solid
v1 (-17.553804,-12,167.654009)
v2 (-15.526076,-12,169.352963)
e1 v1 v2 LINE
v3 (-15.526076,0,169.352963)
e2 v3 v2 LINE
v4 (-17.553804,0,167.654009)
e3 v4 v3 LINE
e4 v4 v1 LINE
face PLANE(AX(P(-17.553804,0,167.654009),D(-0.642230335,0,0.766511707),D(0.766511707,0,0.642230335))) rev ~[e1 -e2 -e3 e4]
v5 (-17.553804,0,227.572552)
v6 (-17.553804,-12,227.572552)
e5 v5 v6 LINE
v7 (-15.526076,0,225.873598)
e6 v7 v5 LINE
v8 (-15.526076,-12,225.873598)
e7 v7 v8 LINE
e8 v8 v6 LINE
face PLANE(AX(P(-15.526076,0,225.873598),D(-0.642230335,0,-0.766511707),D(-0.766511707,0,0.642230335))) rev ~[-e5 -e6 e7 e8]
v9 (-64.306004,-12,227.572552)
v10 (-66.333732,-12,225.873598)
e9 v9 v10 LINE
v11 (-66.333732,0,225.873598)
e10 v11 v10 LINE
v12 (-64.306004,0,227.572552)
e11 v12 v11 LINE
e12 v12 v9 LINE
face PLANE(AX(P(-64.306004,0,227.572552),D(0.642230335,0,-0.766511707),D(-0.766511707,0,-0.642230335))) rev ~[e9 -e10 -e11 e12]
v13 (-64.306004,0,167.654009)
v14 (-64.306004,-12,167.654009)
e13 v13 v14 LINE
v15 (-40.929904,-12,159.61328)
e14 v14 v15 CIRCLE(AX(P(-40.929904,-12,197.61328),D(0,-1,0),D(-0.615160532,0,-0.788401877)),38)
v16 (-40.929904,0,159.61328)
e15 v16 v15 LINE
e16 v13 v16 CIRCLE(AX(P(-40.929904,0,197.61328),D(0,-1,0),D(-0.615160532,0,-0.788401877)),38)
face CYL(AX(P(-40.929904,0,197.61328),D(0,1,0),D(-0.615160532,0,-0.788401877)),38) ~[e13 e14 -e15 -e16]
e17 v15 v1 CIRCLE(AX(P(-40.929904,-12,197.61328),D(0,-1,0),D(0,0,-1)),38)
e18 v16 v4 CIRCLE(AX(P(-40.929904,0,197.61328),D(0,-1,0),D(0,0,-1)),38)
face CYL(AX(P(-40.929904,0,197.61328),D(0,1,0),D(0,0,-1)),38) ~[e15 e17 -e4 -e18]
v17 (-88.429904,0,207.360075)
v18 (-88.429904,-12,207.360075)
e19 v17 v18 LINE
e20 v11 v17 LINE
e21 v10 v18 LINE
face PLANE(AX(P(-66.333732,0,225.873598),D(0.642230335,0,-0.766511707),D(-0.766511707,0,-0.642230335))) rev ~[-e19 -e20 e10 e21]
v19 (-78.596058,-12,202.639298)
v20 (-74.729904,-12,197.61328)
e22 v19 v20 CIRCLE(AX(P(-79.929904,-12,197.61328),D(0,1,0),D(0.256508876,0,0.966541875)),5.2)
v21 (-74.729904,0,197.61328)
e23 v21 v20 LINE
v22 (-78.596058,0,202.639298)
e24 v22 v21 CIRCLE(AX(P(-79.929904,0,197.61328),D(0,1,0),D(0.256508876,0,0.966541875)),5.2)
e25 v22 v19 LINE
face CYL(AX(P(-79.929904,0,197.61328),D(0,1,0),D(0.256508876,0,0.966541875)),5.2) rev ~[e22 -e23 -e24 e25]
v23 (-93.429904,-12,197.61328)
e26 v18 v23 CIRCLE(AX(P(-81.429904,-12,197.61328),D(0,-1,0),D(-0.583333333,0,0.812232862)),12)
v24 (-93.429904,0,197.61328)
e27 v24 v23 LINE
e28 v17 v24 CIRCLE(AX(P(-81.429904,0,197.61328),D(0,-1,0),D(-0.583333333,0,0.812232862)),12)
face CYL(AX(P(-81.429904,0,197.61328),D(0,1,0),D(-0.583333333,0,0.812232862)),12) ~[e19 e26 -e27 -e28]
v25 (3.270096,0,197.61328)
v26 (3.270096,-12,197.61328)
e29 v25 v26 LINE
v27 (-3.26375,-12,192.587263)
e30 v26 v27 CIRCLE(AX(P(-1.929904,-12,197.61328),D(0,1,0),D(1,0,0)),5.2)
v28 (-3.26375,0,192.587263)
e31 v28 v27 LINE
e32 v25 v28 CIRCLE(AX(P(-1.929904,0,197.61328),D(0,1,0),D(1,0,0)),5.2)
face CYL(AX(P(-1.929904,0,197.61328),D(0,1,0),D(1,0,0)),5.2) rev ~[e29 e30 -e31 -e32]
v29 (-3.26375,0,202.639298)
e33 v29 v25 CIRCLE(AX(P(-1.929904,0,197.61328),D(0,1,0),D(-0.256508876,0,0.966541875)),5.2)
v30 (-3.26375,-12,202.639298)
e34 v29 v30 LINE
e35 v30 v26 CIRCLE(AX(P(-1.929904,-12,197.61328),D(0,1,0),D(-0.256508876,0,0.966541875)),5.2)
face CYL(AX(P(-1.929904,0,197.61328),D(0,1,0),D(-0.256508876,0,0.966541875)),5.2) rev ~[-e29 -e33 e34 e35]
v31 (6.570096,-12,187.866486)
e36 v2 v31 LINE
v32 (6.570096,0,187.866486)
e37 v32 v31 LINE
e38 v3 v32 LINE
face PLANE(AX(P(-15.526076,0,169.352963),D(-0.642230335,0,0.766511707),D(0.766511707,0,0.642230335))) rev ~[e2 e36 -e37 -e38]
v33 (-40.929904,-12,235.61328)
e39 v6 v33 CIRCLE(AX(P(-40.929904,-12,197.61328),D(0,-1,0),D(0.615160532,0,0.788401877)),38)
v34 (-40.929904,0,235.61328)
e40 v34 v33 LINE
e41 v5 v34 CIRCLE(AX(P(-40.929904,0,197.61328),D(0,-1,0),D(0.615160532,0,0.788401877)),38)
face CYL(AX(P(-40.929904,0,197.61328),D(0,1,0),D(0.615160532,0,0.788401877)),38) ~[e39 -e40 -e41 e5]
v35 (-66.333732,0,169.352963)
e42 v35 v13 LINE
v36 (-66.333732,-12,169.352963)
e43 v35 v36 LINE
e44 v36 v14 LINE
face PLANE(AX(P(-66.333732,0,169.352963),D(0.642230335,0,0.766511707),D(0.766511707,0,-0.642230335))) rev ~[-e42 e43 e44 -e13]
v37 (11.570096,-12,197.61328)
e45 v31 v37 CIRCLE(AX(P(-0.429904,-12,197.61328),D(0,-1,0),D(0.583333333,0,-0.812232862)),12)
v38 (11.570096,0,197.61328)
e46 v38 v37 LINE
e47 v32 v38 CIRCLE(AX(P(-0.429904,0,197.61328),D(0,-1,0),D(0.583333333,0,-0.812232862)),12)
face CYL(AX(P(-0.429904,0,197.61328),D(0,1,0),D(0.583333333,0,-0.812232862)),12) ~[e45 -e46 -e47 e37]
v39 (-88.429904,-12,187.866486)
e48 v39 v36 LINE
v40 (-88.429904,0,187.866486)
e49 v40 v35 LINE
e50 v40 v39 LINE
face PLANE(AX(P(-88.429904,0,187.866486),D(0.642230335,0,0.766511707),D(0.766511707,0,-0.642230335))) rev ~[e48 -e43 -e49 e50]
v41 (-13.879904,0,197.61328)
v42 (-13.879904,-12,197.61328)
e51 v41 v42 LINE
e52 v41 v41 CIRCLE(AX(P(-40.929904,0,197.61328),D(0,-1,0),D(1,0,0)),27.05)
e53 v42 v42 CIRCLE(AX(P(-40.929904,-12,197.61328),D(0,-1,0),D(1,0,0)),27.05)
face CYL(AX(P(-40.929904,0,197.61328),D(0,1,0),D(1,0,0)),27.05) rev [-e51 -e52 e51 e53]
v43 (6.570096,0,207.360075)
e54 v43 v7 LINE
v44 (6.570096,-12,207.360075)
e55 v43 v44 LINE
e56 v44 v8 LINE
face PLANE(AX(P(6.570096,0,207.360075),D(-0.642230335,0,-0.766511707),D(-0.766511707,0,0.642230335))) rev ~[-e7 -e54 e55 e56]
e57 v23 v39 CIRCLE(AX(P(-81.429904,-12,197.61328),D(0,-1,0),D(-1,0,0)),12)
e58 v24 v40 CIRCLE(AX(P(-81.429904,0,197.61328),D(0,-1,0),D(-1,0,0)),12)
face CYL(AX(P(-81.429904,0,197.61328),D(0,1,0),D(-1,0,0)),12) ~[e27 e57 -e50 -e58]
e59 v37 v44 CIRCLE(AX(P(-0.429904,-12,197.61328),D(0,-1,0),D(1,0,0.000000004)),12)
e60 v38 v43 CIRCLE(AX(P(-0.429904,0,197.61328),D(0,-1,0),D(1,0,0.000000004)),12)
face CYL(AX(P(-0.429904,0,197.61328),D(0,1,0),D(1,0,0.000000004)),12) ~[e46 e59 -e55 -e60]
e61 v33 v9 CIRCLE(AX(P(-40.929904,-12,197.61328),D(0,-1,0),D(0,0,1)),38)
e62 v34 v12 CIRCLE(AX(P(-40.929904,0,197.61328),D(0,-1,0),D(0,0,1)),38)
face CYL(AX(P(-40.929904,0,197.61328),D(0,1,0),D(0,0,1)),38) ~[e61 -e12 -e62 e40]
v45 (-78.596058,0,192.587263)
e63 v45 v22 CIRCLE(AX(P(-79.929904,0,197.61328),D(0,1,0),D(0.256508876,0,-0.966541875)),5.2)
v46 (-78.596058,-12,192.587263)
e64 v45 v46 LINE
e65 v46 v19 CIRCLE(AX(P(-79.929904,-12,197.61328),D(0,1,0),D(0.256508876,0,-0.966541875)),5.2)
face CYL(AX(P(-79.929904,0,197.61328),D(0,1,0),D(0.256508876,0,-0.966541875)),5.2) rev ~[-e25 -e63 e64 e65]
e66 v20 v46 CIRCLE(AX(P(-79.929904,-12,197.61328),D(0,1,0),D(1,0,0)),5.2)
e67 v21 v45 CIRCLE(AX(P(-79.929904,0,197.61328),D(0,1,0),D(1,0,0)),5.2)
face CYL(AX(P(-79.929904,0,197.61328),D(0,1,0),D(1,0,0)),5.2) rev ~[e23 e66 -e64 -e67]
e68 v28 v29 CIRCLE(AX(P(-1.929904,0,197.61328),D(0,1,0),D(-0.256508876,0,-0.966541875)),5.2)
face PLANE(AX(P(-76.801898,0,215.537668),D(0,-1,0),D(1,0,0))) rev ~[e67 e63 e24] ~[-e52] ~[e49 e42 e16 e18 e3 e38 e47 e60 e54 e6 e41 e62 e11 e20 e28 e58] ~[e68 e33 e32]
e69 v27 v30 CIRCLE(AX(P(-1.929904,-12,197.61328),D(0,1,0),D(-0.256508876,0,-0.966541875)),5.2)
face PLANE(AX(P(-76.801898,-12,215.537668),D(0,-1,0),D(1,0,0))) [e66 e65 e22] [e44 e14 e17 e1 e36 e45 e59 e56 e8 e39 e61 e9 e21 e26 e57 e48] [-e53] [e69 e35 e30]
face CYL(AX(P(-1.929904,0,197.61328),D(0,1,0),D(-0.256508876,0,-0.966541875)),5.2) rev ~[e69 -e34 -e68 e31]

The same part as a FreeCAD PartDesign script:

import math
import FreeCAD as App
import Part
import Sketcher
from FreeCAD import Vector

doc = App.newDocument("Part")
body = doc.addObject("PartDesign::Body", "Body")

# Sketch on XZ plane
sketch1 = body.newObject("Sketcher::SketchObject", "Sketch")
sketch1.AttachmentSupport = (doc.getObject("XZ_Plane"), [""])
sketch1.MapMode = "FlatFace"
sketch1.addGeometry([
    Part.LineSegment(Vector(-66.3, 225.9, 0), Vector(-88.4, 207.4, 0)),  # 0
    Part.ArcOfCircle(Part.Circle(Vector(-81.4, 197.6, 0), Vector(0, 0, 1), 12), math.radians(126), math.radians(180)),  # 1
    Part.ArcOfCircle(Part.Circle(Vector(-81.4, 197.6, 0), Vector(0, 0, 1), 12), math.radians(180), math.radians(234)),  # 2
    Part.LineSegment(Vector(-88.4, 187.9, 0), Vector(-66.3, 169.4, 0)),  # 3
    Part.LineSegment(Vector(-66.3, 169.4, 0), Vector(-64.3, 167.7, 0)),  # 4
    Part.ArcOfCircle(Part.Circle(Vector(-40.9, 197.6, 0), Vector(0, 0, 1), 38), math.radians(-128), math.radians(-90)),  # 5
    Part.ArcOfCircle(Part.Circle(Vector(-40.9, 197.6, 0), Vector(0, 0, 1), 38), math.radians(-90), math.radians(-52)),  # 6
    Part.LineSegment(Vector(-17.6, 167.7, 0), Vector(-15.5, 169.4, 0)),  # 7
    Part.LineSegment(Vector(-15.5, 169.4, 0), Vector(6.6, 187.9, 0)),  # 8
    Part.ArcOfCircle(Part.Circle(Vector(-0.4, 197.6, 0), Vector(0, 0, 1), 12), math.radians(-54), math.radians(0)),  # 9
    Part.ArcOfCircle(Part.Circle(Vector(-0.4, 197.6, 0), Vector(0, 0, 1), 12), math.radians(0), math.radians(54)),  # 10
    Part.LineSegment(Vector(6.6, 207.4, 0), Vector(-15.5, 225.9, 0)),  # 11
    Part.LineSegment(Vector(-15.5, 225.9, 0), Vector(-17.6, 227.6, 0)),  # 12
    Part.ArcOfCircle(Part.Circle(Vector(-40.9, 197.6, 0), Vector(0, 0, 1), 38), math.radians(52), math.radians(90)),  # 13
    Part.ArcOfCircle(Part.Circle(Vector(-40.9, 197.6, 0), Vector(0, 0, 1), 38), math.radians(90), math.radians(128)),  # 14
    Part.LineSegment(Vector(-64.3, 227.6, 0), Vector(-66.3, 225.9, 0)),  # 15
    Part.ArcOfCircle(Part.Circle(Vector(-1.9, 197.6, 0), Vector(0, 0, 1), 5.2), math.radians(105), math.radians(255)),  # 16
    Part.ArcOfCircle(Part.Circle(Vector(-1.9, 197.6, 0), Vector(0, 0, 1), 5.2), math.radians(0), math.radians(105)),  # 17
    Part.ArcOfCircle(Part.Circle(Vector(-1.9, 197.6, 0), Vector(0, 0, 1), 5.2), math.radians(-105), math.radians(0)),  # 18
    Part.ArcOfCircle(Part.Circle(Vector(-79.9, 197.6, 0), Vector(0, 0, 1), 5.2), math.radians(75), math.radians(285)),  # 19
    Part.ArcOfCircle(Part.Circle(Vector(-79.9, 197.6, 0), Vector(0, 0, 1), 5.2), math.radians(0), math.radians(75)),  # 20
    Part.ArcOfCircle(Part.Circle(Vector(-79.9, 197.6, 0), Vector(0, 0, 1), 5.2), math.radians(-75), math.radians(0)),  # 21
    Part.Circle(Vector(-40.9, 197.6, 0), Vector(0, 0, 1), 27.1),  # 22
], False)
sketch1.addConstraint([
    Sketcher.Constraint("Coincident", 0, 2, 1, 1),
    Sketcher.Constraint("Tangent", 1, 2, 2, 1),
    Sketcher.Constraint("Coincident", 2, 2, 3, 1),
    Sketcher.Constraint("Coincident", 3, 2, 4, 1),
    Sketcher.Constraint("Coincident", 4, 2, 5, 1),
    Sketcher.Constraint("Tangent", 5, 2, 6, 1),
    Sketcher.Constraint("Coincident", 6, 2, 7, 1),
    Sketcher.Constraint("Coincident", 7, 2, 8, 1),
    Sketcher.Constraint("Coincident", 8, 2, 9, 1),
    Sketcher.Constraint("Tangent", 9, 2, 10, 1),
    Sketcher.Constraint("Coincident", 10, 2, 11, 1),
    Sketcher.Constraint("Coincident", 11, 2, 12, 1),
    Sketcher.Constraint("Coincident", 12, 2, 13, 1),
    Sketcher.Constraint("Tangent", 13, 2, 14, 1),
    Sketcher.Constraint("Coincident", 14, 2, 15, 1),
    Sketcher.Constraint("Coincident", 15, 2, 0, 1),
    Sketcher.Constraint("Tangent", 16, 1, 17, 2),
    Sketcher.Constraint("Tangent", 17, 1, 18, 2),
    Sketcher.Constraint("Tangent", 18, 1, 16, 2),
    Sketcher.Constraint("Tangent", 19, 1, 20, 2),
    Sketcher.Constraint("Tangent", 20, 1, 21, 2),
    Sketcher.Constraint("Tangent", 21, 1, 19, 2),
    Sketcher.Constraint("Coincident", 13, 3, 5, 3),
    Sketcher.Constraint("Coincident", 22, 3, 5, 3),
    Sketcher.Constraint("Equal", 1, 2),
    Sketcher.Constraint("Equal", 5, 6),
    Sketcher.Constraint("Equal", 2, 9),
    Sketcher.Constraint("Equal", 9, 10),
    Sketcher.Constraint("Equal", 6, 13),
    Sketcher.Constraint("Equal", 13, 14),
    Sketcher.Constraint("Equal", 18, 19),
    Sketcher.Constraint("Parallel", 3, 4),
    Sketcher.Constraint("Parallel", 0, 7),
    Sketcher.Constraint("Parallel", 7, 8),
    Sketcher.Constraint("Parallel", 4, 11),
    Sketcher.Constraint("Parallel", 11, 12),
    Sketcher.Constraint("Parallel", 8, 15),
    Sketcher.Constraint("Horizontal", 2, 3, 5, 3),
    Sketcher.Constraint("Horizontal", 6, 3, 9, 3),
    Sketcher.Constraint("Horizontal", 14, 3, 16, 3),
    Sketcher.Constraint("Horizontal", 18, 3, 19, 3),
    Sketcher.Constraint("Horizontal", 22, 3, 1, 2),
    Sketcher.Constraint("Horizontal", 4, 2, 6, 2),
    Sketcher.Constraint("Horizontal", 3, 2, 7, 2),
    Sketcher.Constraint("Horizontal", 2, 2, 8, 2),
    Sketcher.Constraint("Horizontal", 1, 2, 9, 2),
    Sketcher.Constraint("Horizontal", 0, 2, 10, 2),
    Sketcher.Constraint("Horizontal", 12, 2, 14, 2),
    Sketcher.Constraint("Horizontal", 11, 2, 15, 2),
    Sketcher.Constraint("Horizontal", 9, 2, 17, 1),
    Sketcher.Constraint("Horizontal", 16, 1, 19, 1),
    Sketcher.Constraint("Horizontal", 17, 1, 20, 1),
    Sketcher.Constraint("Horizontal", 18, 1, 21, 1),
    Sketcher.Constraint("Vertical", 0, 2, 2, 2),
    Sketcher.Constraint("Vertical", 22, 3, 5, 2),
    Sketcher.Constraint("Vertical", 7, 2, 11, 2),
    Sketcher.Constraint("Vertical", 5, 2, 13, 2),
    Sketcher.Constraint("Vertical", 16, 1, 18, 1),
    Sketcher.Constraint("Radius", 1, 12.0),
    Sketcher.Constraint("Radius", 5, 38.0),
    Sketcher.Constraint("Diameter", 22, 54.1),
    Sketcher.Constraint("Radius", 16, 5.2),
    Sketcher.Constraint("DistanceX", 1, 3, 9, 3, 81.0),
    Sketcher.Constraint("DistanceX", 5, 3, 16, 3, 39.0),
    Sketcher.Constraint("DistanceX", 19, 3, 6, 3, 39.0),
    Sketcher.Constraint("DistanceX", 0, 2, 1, 3, 7.0),
    Sketcher.Constraint("DistanceY", -1, 1, 16, 1, 202.639298),
    Sketcher.Constraint("DistanceX", 2, 2, 4, 2, 24.1239),
    Sketcher.Constraint("Distance", 0, 28.826921),
    Sketcher.Constraint("DistanceY", -1, 1, 1, 3, 197.61328),
    Sketcher.Constraint("DistanceX", 3, 2, -1, 1, 66.333732),
])
pad1 = body.newObject("PartDesign::Pad", "Pad")
pad1.Profile = sketch1
pad1.Length = 12

doc.recompute()
